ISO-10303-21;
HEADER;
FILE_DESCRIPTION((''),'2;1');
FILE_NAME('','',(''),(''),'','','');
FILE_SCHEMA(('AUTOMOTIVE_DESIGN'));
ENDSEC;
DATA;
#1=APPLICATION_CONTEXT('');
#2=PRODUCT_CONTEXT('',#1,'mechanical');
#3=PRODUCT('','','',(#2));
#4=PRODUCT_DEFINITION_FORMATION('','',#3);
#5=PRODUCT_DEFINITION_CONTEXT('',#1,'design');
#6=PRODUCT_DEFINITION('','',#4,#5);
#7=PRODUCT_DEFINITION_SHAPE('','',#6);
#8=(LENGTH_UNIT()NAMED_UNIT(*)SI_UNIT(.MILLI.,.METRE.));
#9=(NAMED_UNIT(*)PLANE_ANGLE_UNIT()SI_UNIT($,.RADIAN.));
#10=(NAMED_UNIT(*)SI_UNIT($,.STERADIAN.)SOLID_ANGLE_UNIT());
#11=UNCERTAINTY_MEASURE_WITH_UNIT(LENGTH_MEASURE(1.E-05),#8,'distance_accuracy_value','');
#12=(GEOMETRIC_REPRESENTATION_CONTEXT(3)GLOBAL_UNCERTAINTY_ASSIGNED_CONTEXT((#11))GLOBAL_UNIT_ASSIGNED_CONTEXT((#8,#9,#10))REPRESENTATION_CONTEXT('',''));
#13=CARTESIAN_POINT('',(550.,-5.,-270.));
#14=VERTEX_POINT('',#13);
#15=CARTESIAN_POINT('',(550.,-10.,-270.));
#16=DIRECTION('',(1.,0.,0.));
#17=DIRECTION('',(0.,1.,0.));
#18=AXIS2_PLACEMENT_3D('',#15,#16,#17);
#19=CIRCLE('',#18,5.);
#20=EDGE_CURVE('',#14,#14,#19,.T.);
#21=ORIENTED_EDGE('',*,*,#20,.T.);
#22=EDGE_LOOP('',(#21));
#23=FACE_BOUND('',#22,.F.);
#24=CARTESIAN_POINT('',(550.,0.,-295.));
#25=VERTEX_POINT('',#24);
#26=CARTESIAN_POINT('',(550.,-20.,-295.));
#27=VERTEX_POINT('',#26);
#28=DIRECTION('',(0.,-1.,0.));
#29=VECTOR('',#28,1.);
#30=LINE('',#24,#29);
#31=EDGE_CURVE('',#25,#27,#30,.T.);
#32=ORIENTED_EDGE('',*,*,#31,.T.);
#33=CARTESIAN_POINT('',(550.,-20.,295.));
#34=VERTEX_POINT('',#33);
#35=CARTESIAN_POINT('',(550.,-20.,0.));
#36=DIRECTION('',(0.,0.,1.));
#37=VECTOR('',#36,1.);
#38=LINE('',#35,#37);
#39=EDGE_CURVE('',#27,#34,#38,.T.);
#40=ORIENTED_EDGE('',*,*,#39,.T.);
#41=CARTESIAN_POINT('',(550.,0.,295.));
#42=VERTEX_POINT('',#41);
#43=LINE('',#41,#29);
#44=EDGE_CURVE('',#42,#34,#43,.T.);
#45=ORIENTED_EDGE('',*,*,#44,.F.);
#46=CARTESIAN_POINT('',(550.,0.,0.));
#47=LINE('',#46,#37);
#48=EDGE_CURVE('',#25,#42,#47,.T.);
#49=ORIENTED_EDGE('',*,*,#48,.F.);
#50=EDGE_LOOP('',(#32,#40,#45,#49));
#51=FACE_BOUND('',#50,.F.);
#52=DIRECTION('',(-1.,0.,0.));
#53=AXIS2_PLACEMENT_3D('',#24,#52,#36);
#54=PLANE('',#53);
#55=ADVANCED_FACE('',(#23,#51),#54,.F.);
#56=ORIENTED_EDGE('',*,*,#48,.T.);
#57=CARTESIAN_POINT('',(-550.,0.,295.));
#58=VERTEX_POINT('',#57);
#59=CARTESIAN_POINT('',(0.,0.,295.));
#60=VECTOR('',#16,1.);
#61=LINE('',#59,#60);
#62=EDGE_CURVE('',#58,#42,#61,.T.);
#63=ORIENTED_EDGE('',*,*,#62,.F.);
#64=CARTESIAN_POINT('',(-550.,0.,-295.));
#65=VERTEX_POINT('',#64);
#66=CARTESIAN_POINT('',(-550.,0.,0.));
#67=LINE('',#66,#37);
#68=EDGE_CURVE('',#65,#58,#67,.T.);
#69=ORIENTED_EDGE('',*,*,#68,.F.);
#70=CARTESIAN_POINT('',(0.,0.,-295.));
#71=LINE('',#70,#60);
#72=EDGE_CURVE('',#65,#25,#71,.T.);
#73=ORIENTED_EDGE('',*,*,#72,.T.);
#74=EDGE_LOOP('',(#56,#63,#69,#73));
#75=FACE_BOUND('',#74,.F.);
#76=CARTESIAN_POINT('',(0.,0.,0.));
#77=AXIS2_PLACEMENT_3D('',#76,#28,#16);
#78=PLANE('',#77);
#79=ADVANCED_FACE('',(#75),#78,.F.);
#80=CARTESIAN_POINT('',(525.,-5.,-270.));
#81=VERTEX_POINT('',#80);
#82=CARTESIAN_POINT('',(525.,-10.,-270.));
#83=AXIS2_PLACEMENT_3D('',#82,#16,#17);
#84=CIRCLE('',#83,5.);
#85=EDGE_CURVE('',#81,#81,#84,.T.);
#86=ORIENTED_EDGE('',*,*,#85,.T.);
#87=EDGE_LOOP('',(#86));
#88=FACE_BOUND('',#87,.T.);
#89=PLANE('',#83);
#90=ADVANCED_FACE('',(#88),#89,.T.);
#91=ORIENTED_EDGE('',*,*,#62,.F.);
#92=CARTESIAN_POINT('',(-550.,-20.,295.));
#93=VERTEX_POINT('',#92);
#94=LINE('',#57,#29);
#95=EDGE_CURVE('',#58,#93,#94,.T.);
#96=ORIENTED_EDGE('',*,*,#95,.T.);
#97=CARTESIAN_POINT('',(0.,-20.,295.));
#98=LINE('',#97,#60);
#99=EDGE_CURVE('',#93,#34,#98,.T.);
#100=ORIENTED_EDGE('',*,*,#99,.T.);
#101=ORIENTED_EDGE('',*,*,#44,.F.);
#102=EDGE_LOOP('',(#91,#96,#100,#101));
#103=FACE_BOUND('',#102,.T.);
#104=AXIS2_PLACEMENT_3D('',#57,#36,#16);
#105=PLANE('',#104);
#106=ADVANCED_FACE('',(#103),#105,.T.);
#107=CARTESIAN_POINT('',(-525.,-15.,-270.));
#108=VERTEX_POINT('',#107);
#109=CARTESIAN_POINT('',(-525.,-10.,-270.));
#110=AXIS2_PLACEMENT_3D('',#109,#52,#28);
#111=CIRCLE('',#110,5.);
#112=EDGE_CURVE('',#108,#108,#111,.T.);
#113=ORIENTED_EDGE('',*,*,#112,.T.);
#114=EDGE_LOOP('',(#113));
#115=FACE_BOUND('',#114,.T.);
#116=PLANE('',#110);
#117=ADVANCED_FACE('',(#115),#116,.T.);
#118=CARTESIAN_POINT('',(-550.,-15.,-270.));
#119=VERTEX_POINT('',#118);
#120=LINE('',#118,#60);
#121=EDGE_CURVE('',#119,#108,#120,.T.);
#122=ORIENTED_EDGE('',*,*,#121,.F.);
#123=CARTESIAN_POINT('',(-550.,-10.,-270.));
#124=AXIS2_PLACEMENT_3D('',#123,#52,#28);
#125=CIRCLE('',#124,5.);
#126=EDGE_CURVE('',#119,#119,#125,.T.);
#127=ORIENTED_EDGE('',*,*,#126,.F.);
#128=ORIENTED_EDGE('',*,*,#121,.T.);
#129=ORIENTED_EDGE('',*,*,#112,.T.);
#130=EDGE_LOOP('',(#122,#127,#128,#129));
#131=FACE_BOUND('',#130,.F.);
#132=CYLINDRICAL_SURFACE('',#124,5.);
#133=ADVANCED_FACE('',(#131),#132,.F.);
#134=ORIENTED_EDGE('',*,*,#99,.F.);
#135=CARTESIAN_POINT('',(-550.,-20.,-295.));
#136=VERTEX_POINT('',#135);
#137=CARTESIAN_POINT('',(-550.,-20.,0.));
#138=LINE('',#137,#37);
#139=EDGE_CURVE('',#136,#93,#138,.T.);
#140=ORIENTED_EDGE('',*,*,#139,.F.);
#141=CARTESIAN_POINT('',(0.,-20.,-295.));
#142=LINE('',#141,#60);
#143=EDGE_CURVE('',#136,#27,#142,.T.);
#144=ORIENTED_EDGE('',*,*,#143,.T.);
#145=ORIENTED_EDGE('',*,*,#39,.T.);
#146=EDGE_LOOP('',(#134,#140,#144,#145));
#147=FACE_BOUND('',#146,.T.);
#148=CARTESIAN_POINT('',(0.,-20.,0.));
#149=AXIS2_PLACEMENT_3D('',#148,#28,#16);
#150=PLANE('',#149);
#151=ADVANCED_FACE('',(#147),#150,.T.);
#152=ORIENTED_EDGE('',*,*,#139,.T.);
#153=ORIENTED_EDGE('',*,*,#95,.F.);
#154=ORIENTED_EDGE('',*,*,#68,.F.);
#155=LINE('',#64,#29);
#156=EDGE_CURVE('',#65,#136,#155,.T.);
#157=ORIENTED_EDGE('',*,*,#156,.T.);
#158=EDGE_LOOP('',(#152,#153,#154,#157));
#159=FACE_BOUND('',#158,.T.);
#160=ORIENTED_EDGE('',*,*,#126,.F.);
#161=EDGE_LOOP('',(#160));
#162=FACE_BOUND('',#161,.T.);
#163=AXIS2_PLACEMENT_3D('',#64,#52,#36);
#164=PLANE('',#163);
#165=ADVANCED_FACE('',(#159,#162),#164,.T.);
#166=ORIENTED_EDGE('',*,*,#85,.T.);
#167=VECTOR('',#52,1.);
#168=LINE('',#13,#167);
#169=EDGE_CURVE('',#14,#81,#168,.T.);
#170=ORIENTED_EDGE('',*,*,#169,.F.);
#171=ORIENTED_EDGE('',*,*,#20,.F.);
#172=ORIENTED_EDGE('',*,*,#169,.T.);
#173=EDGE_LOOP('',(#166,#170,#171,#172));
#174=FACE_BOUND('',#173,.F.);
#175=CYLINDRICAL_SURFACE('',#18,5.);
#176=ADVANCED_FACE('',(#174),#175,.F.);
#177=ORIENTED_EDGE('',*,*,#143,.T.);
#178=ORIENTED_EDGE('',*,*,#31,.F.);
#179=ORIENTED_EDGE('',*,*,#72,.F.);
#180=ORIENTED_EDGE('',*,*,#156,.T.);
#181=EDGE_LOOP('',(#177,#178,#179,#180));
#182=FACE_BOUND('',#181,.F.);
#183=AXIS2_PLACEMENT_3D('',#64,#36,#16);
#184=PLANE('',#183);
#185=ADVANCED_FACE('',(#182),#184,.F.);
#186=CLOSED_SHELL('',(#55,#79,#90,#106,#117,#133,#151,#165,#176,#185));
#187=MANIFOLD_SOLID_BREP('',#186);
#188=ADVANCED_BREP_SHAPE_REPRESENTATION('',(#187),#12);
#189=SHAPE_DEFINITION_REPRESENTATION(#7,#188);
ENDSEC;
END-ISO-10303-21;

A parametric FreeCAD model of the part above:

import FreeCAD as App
import Part
import Sketcher
from FreeCAD import Vector


def add_polygon(sketch, points):
    """Adds a closed chain of lines whose ends are joined by coincident constraints."""
    first, n = sketch.GeometryCount, len(points)
    for a, b in zip(points, points[1:] + points[:1]):
        sketch.addGeometry(Part.LineSegment(App.Vector(*a, 0), App.Vector(*b, 0)), False)
    for i in range(n):
        sketch.addConstraint(Sketcher.Constraint("Coincident", first + i, 2, first + (i + 1) % n, 1))

doc = App.newDocument("Part")
body = doc.addObject("PartDesign::Body", "Body")

sketch1 = body.newObject("Sketcher::SketchObject", "Sketch")
sketch1.AttachmentSupport = (doc.getObject("XZ_Plane"), [""])
sketch1.MapMode = "FlatFace"
add_polygon(sketch1, [(-550, 295), (-550, -295), (550, -295), (550, 295)])
sketch1.addConstraint(Sketcher.Constraint("Vertical", 0))
sketch1.addConstraint(Sketcher.Constraint("Horizontal", 1))
sketch1.addConstraint(Sketcher.Constraint("Vertical", 2))
sketch1.addConstraint(Sketcher.Constraint("Horizontal", 3))
sketch1.addConstraint(Sketcher.Constraint("Symmetric", 0, 2, 2, 2, -1, 1))
sketch1.addConstraint(Sketcher.Constraint("DistanceX", 1, 1, 1, 2, 1100.0))
sketch1.addConstraint(Sketcher.Constraint("DistanceY", 0, 2, 0, 1, 590.0))
pad1 = body.newObject("PartDesign::Pad", "Pad")
pad1.Profile = sketch1
pad1.Length = 20

sketch2 = body.newObject("Sketcher::SketchObject", "Sketch001")
sketch2.AttachmentSupport = (doc.getObject("YZ_Plane"), [""])
sketch2.MapMode = "FlatFace"
sketch2.AttachmentOffset = App.Placement(Vector(0, 0, 550), App.Rotation())
sketch2.addGeometry(Part.Circle(Vector(-10, -270, 0), Vector(0, 0, 1), 5), False)
sketch2.addConstraint(Sketcher.Constraint("Diameter", 0, 10.0))
sketch2.addConstraint(Sketcher.Constraint("DistanceX", 0, 3, -1, 1, 10.0))
sketch2.addConstraint(Sketcher.Constraint("DistanceY", 0, 3, -1, 1, 270.0))
pocket1 = body.newObject("PartDesign::Pocket", "Pocket")
pocket1.Profile = sketch2
pocket1.Length = 25

sketch3 = body.newObject("Sketcher::SketchObject", "Sketch002")
sketch3.AttachmentSupport = (doc.getObject("YZ_Plane"), [""])
sketch3.MapMode = "FlatFace"
sketch3.AttachmentOffset = App.Placement(Vector(0, 0, -550), App.Rotation())
sketch3.addGeometry(Part.Circle(Vector(-10, -270, 0), Vector(0, 0, 1), 5), False)
sketch3.addConstraint(Sketcher.Constraint("Diameter", 0, 10.0))
sketch3.addConstraint(Sketcher.Constraint("DistanceX", 0, 3, -1, 1, 10.0))
sketch3.addConstraint(Sketcher.Constraint("DistanceY", 0, 3, -1, 1, 270.0))
pocket2 = body.newObject("PartDesign::Pocket", "Pocket001")
pocket2.Profile = sketch3
pocket2.Length = 25
pocket2.Reversed = True

doc.recompute()
